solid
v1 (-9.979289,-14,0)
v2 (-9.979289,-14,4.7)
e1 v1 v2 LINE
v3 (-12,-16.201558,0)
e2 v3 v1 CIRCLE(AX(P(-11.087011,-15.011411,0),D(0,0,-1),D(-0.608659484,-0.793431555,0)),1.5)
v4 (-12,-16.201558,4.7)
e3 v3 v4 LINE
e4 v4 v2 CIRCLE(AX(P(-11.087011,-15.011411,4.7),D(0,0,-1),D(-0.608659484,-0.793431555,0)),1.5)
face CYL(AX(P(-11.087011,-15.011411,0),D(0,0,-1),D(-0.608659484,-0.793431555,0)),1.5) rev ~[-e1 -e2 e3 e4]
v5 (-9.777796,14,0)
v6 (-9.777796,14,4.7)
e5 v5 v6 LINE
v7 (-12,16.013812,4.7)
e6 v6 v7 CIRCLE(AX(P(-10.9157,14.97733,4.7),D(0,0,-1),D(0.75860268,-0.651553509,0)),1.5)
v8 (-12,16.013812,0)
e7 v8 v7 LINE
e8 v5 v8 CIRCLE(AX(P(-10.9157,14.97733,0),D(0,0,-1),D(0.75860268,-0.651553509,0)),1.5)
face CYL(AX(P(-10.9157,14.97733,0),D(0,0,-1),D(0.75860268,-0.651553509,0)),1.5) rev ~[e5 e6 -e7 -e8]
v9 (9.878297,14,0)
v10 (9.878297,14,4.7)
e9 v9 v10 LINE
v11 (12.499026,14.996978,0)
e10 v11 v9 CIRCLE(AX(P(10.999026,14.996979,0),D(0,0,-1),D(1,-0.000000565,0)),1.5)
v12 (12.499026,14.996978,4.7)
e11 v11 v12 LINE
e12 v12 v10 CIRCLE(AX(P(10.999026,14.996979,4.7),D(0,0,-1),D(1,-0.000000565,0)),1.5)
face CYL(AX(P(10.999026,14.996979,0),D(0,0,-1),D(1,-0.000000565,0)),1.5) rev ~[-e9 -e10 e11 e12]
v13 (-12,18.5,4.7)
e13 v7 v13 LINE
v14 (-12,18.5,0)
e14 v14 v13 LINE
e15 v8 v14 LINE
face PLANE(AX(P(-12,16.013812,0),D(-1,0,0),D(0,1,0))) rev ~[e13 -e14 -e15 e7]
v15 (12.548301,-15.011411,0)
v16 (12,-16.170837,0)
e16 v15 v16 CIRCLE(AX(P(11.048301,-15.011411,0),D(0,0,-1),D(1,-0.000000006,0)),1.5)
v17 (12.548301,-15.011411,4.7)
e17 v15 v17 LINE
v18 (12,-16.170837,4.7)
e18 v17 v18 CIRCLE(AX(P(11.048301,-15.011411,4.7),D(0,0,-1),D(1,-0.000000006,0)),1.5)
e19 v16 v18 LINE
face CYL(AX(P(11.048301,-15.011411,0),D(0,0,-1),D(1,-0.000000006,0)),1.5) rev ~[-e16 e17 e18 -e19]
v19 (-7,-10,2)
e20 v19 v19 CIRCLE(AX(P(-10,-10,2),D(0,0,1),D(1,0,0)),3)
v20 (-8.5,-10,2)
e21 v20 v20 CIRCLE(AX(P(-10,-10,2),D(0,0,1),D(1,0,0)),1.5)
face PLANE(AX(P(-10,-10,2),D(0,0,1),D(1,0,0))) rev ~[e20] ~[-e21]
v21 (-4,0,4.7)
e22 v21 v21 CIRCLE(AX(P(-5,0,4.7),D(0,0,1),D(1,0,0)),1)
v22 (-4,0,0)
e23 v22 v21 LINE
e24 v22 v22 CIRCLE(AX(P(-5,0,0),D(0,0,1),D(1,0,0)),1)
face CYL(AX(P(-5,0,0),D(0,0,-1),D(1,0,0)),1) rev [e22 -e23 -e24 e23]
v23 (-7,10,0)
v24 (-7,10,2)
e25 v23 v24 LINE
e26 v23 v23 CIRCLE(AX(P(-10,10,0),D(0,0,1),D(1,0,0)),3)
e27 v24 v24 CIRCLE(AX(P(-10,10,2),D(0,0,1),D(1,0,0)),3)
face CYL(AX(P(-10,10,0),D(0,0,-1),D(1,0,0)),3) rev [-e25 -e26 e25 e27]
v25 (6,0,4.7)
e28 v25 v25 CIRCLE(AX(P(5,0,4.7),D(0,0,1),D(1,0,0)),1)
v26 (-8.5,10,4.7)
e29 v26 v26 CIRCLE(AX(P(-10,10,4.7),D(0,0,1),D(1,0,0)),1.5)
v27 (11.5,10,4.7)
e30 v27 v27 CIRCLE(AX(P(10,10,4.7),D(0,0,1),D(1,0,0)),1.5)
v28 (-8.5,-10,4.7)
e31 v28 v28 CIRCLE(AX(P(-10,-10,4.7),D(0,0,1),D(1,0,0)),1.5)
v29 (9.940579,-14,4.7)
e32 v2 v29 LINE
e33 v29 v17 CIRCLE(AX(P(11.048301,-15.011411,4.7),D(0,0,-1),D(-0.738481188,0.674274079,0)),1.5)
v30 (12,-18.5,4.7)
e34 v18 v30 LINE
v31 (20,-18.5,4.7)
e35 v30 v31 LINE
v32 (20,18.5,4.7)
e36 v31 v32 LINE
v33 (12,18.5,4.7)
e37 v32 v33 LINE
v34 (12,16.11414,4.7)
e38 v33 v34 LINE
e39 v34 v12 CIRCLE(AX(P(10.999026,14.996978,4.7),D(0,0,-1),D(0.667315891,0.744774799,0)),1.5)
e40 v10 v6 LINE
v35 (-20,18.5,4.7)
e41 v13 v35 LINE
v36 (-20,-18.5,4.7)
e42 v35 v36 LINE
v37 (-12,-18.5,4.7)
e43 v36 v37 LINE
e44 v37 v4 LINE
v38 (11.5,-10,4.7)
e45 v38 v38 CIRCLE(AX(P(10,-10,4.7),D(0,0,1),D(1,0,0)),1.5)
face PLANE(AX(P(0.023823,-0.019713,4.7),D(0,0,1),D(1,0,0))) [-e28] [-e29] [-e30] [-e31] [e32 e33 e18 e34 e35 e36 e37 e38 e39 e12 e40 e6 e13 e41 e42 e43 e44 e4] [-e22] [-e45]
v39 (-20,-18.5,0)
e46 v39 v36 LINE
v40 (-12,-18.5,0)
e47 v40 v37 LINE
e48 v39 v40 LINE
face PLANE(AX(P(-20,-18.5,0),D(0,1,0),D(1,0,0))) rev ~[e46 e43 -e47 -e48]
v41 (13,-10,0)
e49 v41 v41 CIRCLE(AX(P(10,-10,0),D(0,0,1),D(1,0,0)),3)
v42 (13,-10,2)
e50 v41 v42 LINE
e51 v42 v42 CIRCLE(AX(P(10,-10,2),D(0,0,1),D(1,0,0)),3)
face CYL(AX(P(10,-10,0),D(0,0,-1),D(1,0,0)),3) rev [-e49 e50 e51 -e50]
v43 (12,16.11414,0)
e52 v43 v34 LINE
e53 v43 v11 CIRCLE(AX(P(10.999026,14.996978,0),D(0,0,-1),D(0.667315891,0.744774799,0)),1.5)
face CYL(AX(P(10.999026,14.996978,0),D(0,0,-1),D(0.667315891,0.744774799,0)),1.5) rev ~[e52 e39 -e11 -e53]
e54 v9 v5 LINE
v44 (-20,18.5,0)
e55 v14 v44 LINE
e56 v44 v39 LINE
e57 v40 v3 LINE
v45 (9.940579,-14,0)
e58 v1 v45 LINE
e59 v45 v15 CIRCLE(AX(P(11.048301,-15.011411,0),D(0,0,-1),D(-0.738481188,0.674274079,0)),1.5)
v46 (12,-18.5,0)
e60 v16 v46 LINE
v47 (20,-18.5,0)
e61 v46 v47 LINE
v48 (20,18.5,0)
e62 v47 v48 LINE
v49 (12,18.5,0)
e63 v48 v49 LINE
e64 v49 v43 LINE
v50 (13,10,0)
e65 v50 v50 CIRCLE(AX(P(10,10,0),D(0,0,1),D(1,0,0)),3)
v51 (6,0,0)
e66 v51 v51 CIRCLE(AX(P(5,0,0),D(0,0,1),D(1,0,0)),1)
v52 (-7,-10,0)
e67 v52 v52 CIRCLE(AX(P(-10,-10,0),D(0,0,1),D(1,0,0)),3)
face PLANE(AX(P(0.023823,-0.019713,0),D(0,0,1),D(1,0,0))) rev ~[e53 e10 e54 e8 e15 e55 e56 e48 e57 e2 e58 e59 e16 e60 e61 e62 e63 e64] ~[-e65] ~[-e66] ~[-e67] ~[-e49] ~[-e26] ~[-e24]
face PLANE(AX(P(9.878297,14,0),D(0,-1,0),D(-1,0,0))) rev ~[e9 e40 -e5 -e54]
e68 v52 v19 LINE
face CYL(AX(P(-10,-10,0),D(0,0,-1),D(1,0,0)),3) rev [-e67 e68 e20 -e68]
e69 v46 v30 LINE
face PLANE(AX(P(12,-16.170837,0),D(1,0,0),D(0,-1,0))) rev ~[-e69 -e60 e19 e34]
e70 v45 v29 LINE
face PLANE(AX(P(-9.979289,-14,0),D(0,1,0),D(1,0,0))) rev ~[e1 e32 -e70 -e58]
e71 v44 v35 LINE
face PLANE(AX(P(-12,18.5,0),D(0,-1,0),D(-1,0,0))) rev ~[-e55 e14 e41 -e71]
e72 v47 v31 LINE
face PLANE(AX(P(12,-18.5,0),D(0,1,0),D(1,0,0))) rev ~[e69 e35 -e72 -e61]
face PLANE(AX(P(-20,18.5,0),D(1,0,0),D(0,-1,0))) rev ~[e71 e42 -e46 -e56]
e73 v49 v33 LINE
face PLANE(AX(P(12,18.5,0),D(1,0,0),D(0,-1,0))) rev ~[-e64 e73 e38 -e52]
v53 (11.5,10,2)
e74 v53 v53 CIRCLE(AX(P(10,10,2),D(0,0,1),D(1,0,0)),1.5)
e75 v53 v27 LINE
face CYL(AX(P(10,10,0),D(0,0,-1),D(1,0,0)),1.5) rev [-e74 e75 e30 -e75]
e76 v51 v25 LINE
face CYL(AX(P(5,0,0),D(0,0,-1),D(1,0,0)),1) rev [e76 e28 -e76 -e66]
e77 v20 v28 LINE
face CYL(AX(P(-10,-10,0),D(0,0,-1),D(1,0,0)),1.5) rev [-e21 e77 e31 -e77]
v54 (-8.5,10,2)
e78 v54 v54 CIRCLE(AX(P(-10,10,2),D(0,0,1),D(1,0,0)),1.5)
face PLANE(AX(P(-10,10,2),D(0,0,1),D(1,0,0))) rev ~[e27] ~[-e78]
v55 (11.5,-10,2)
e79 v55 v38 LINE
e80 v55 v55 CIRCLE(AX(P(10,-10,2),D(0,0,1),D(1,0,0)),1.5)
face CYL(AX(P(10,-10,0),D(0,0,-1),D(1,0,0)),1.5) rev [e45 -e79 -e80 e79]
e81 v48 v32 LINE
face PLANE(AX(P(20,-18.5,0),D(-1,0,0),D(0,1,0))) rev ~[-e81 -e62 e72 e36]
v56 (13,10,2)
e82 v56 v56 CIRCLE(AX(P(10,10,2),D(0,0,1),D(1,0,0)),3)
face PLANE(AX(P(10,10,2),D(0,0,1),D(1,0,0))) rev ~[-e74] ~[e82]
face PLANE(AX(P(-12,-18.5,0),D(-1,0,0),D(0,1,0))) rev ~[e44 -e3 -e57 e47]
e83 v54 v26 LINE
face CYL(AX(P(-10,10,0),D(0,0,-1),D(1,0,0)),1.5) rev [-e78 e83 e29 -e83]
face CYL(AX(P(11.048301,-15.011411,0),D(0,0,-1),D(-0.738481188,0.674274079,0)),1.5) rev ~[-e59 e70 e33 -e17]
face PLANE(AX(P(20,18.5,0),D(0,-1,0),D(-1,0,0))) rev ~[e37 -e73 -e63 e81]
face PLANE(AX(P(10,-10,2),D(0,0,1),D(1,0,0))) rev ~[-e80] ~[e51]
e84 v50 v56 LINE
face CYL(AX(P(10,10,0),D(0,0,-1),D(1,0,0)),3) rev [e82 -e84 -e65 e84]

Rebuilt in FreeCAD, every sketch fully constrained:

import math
import FreeCAD as App
import Part
import Sketcher
from FreeCAD import Vector
Q = App.Units.Quantity

doc = App.newDocument("Part")
body = doc.addObject("PartDesign::Body", "Body")

# Sketch on XY plane
sketch1 = body.newObject("Sketcher::SketchObject", "Sketch")
sketch1.AttachmentSupport = (doc.getObject("XY_Plane"), [""])
sketch1.MapMode = "FlatFace"
sketch1.addGeometry(Part.LineSegment(Vector(12, -18.5, 0), Vector(20, -18.5, 0)), False)
sketch1.addGeometry(Part.LineSegment(Vector(20, -18.5, 0), Vector(20, 18.5, 0)), False)
sketch1.addGeometry(Part.LineSegment(Vector(20, 18.5, 0), Vector(12, 18.5, 0)), False)
sketch1.addGeometry(Part.LineSegment(Vector(12, 18.5, 0), Vector(12, 16.1, 0)), False)
sketch1.addGeometry(Part.ArcOfCircle(Part.Circle(Vector(11, 15, 0), Vector(0, 0, 1), 1.5), math.radians(0), math.radians(48)), False)
sketch1.addGeometry(Part.ArcOfCircle(Part.Circle(Vector(11, 15, 0), Vector(0, 0, 1), 1.5), math.radians(-138), math.radians(0)), False)
sketch1.addGeometry(Part.LineSegment(Vector(9.9, 14, 0), Vector(-9.8, 14, 0)), False)
sketch1.addGeometry(Part.ArcOfCircle(Part.Circle(Vector(-10.9, 15, 0), Vector(0, 0, 1), 1.5), math.radians(136), math.radians(319)), False)
sketch1.addGeometry(Part.LineSegment(Vector(-12, 16, 0), Vector(-12, 18.5, 0)), False)
sketch1.addGeometry(Part.LineSegment(Vector(-12, 18.5, 0), Vector(-20, 18.5, 0)), False)
sketch1.addGeometry(Part.LineSegment(Vector(-20, 18.5, 0), Vector(-20, -18.5, 0)), False)
sketch1.addGeometry(Part.LineSegment(Vector(-20, -18.5, 0), Vector(-12, -18.5, 0)), False)
sketch1.addGeometry(Part.LineSegment(Vector(-12, -18.5, 0), Vector(-12, -16.2, 0)), False)
sketch1.addGeometry(Part.ArcOfCircle(Part.Circle(Vector(-11.1, -15, 0), Vector(0, 0, 1), 1.5), math.radians(42), math.radians(233)), False)
sketch1.addGeometry(Part.LineSegment(Vector(-10, -14, 0), Vector(9.9, -14, 0)), False)
sketch1.addGeometry(Part.ArcOfCircle(Part.Circle(Vector(11, -15, 0), Vector(0, 0, 1), 1.5), math.radians(0), math.radians(138)), False)
sketch1.addGeometry(Part.ArcOfCircle(Part.Circle(Vector(11, -15, 0), Vector(0, 0, 1), 1.5), math.radians(-51), math.radians(0)), False)
sketch1.addGeometry(Part.LineSegment(Vector(12, -16.2, 0), Vector(12, -18.5, 0)), False)
sketch1.addGeometry(Part.Circle(Vector(-10, -10, 0), Vector(0, 0, 1), 1.5), False)
sketch1.addGeometry(Part.Circle(Vector(10, -10, 0), Vector(0, 0, 1), 1.5), False)
sketch1.addGeometry(Part.Circle(Vector(-5, 0, 0), Vector(0, 0, 1), 1), False)
sketch1.addGeometry(Part.Circle(Vector(-10, 10, 0), Vector(0, 0, 1), 1.5), False)
sketch1.addGeometry(Part.Circle(Vector(5, 0, 0), Vector(0, 0, 1), 1), False)
sketch1.addGeometry(Part.Circle(Vector(10, 10, 0), Vector(0, 0, 1), 1.5), False)
sketch1.addConstraint(Sketcher.Constraint("Coincident", 0, 2, 1, 1))
sketch1.addConstraint(Sketcher.Constraint("Coincident", 1, 2, 2, 1))
sketch1.addConstraint(Sketcher.Constraint("Coincident", 2, 2, 3, 1))
sketch1.addConstraint(Sketcher.Constraint("Coincident", 3, 2, 4, 2))
sketch1.addConstraint(Sketcher.Constraint("Tangent", 4, 1, 5, 2))
sketch1.addConstraint(Sketcher.Constraint("Coincident", 5, 1, 6, 1))
sketch1.addConstraint(Sketcher.Constraint("Coincident", 6, 2, 7, 2))
sketch1.addConstraint(Sketcher.Constraint("Coincident", 7, 1, 8, 1))
sketch1.addConstraint(Sketcher.Constraint("Coincident", 8, 2, 9, 1))
sketch1.addConstraint(Sketcher.Constraint("Coincident", 9, 2, 10, 1))
sketch1.addConstraint(Sketcher.Constraint("Coincident", 10, 2, 11, 1))
sketch1.addConstraint(Sketcher.Constraint("Coincident", 11, 2, 12, 1))
sketch1.addConstraint(Sketcher.Constraint("Coincident", 12, 2, 13, 2))
sketch1.addConstraint(Sketcher.Constraint("Coincident", 13, 1, 14, 1))
sketch1.addConstraint(Sketcher.Constraint("Coincident", 14, 2, 15, 2))
sketch1.addConstraint(Sketcher.Constraint("Tangent", 15, 1, 16, 2))
sketch1.addConstraint(Sketcher.Constraint("Coincident", 16, 1, 17, 1))
sketch1.addConstraint(Sketcher.Constraint("Coincident", 17, 2, 0, 1))
sketch1.addConstraint(Sketcher.Constraint("Horizontal", 0))
sketch1.addConstraint(Sketcher.Constraint("Vertical", 1))
sketch1.addConstraint(Sketcher.Constraint("Horizontal", 2))
sketch1.addConstraint(Sketcher.Constraint("Vertical", 3))
sketch1.addConstraint(Sketcher.Constraint("Horizontal", 6))
sketch1.addConstraint(Sketcher.Constraint("Vertical", 8))
sketch1.addConstraint(Sketcher.Constraint("Horizontal", 9))
sketch1.addConstraint(Sketcher.Constraint("Vertical", 10))
sketch1.addConstraint(Sketcher.Constraint("Horizontal", 11))
sketch1.addConstraint(Sketcher.Constraint("Vertical", 12))
sketch1.addConstraint(Sketcher.Constraint("Horizontal", 14))
sketch1.addConstraint(Sketcher.Constraint("Vertical", 17))
sketch1.addConstraint(Sketcher.Constraint("Equal", 4, 5))
sketch1.addConstraint(Sketcher.Constraint("Equal", 5, 7))
sketch1.addConstraint(Sketcher.Constraint("Equal", 7, 13))
sketch1.addConstraint(Sketcher.Constraint("Equal", 13, 15))
sketch1.addConstraint(Sketcher.Constraint("Equal", 15, 16))
sketch1.addConstraint(Sketcher.Constraint("Equal", 16, 18))
sketch1.addConstraint(Sketcher.Constraint("Equal", 18, 19))
sketch1.addConstraint(Sketcher.Constraint("Equal", 19, 21))
sketch1.addConstraint(Sketcher.Constraint("Equal", 20, 22))
sketch1.addConstraint(Sketcher.Constraint("Equal", 21, 23))
sketch1.addConstraint(Sketcher.Constraint("Symmetric", 19, 3, 21, 3, -1, 1))
sketch1.addConstraint(Sketcher.Constraint("Symmetric", 20, 3, 22, 3, -1, 1))
sketch1.addConstraint(Sketcher.Constraint("Symmetric", 18, 3, 23, 3, -1, 1))
sketch1.addConstraint(Sketcher.Constraint("Symmetric", 0, 2, 9, 2, -1, 1))
sketch1.addConstraint(Sketcher.Constraint("Symmetric", 2, 2, 11, 2, -1, 1))
sketch1.addConstraint(Sketcher.Constraint("Symmetric", 18, 3, 19, 3, -2))
sketch1.addConstraint(Sketcher.Constraint("Symmetric", 2, 2, 8, 2, -2))
sketch1.addConstraint(Sketcher.Constraint("PointOnObject", 20, 3, -1))
sketch1.addConstraint(Sketcher.Constraint("Horizontal", 13, 3, 15, 3))
sketch1.addConstraint(Sketcher.Constraint("Horizontal", 5, 3, 4, 1))
sketch1.addConstraint(Sketcher.Constraint("Horizontal", 16, 3, 15, 1))
sketch1.addConstraint(Sketcher.Constraint("Vertical", 3, 2, 16, 1))
sketch1.addConstraint(Sketcher.Constraint("Diameter", 18, Q("3 mm")))
sketch1.addConstraint(Sketcher.Constraint("Diameter", 20, Q("2 mm")))
sketch1.addConstraint(Sketcher.Constraint("DistanceX", 0, 1, 0, 2, Q("8 mm")))
sketch1.addConstraint(Sketcher.Constraint("DistanceY", 1, 1, 1, 2, Q("37 mm")))
sketch1.addConstraint(Sketcher.Constraint("DistanceX", 18, 3, -1, 1, Q("10 mm")))
sketch1.addConstraint(Sketcher.Constraint("DistanceY", 18, 3, -1, 1, Q("10 mm")))
sketch1.addConstraint(Sketcher.Constraint("DistanceX", 20, 3, -1, 1, Q("5 mm")))
sketch1.addConstraint(Sketcher.Constraint("DistanceX", -1, 1, 0, 2, Q("20 mm")))
sketch1.addConstraint(Sketcher.Constraint("DistanceY", -1, 1, 5, 1, Q("14 mm")))
sketch1.addConstraint(Sketcher.Constraint("DistanceY", 13, 1, -1, 1, Q("14 mm")))
sketch1.addConstraint(Sketcher.Constraint("DistanceX", 7, 3, 15, 3, Q("21.964001 mm")))
sketch1.addConstraint(Sketcher.Constraint("DistanceX", 14, 1, 14, 2, Q("19.919868 mm")))
sketch1.addConstraint(Sketcher.Constraint("DistanceY", 3, 2, 3, 1, Q("2.38586 mm")))
sketch1.addConstraint(Sketcher.Constraint("DistanceX", 7, 3, -1, 1, Q("10.9157 mm")))
sketch1.addConstraint(Sketcher.Constraint("DistanceX", 6, 2, 6, 1, Q("19.656093 mm")))
sketch1.addConstraint(Sketcher.Constraint("DistanceY", 8, 1, 8, 2, Q("2.486188 mm")))
sketch1.addConstraint(Sketcher.Constraint("DistanceY", 12, 1, 12, 2, Q("2.298442 mm")))
pad1 = body.newObject("PartDesign::Pad", "Pad")
pad1.Profile = sketch1
pad1.Length = 4.7

# Sketch on XY plane
sketch2 = body.newObject("Sketcher::SketchObject", "Sketch001")
sketch2.AttachmentSupport = (doc.getObject("XY_Plane"), [""])
sketch2.MapMode = "FlatFace"
sketch2.addGeometry(Part.Circle(Vector(10, 10, 0), Vector(0, 0, 1), 3), False)
sketch2.addGeometry(Part.Circle(Vector(10, 10, 0), Vector(0, 0, 1), 1.5), False)
sketch2.addGeometry(Part.Circle(Vector(-10, 10, 0), Vector(0, 0, 1), 3), False)
sketch2.addGeometry(Part.Circle(Vector(-10, 10, 0), Vector(0, 0, 1), 1.5), False)
sketch2.addGeometry(Part.Circle(Vector(10, -10, 0), Vector(0, 0, 1), 3), False)
sketch2.addGeometry(Part.Circle(Vector(10, -10, 0), Vector(0, 0, 1), 1.5), False)
sketch2.addGeometry(Part.Circle(Vector(-10, -10, 0), Vector(0, 0, 1), 3), False)
sketch2.addGeometry(Part.Circle(Vector(-10, -10, 0), Vector(0, 0, 1), 1.5), False)
sketch2.addConstraint(Sketcher.Constraint("Coincident", 1, 3, 0, 3))
sketch2.addConstraint(Sketcher.Constraint("Coincident", 3, 3, 2, 3))
sketch2.addConstraint(Sketcher.Constraint("Coincident", 5, 3, 4, 3))
sketch2.addConstraint(Sketcher.Constraint("Coincident", 7, 3, 6, 3))
sketch2.addConstraint(Sketcher.Constraint("Equal", 0, 2))
sketch2.addConstraint(Sketcher.Constraint("Equal", 1, 3))
sketch2.addConstraint(Sketcher.Constraint("Equal", 2, 4))
sketch2.addConstraint(Sketcher.Constraint("Equal", 3, 5))
sketch2.addConstraint(Sketcher.Constraint("Equal", 4, 6))
sketch2.addConstraint(Sketcher.Constraint("Equal", 5, 7))
sketch2.addConstraint(Sketcher.Constraint("Symmetric", 2, 3, 4, 3, -1, 1))
sketch2.addConstraint(Sketcher.Constraint("Symmetric", 0, 3, 6, 3, -1, 1))
sketch2.addConstraint(Sketcher.Constraint("Symmetric", 0, 3, 2, 3, -2))
sketch2.addConstraint(Sketcher.Constraint("Diameter", 0, Q("6 mm")))
sketch2.addConstraint(Sketcher.Constraint("Diameter", 1, Q("3 mm")))
sketch2.addConstraint(Sketcher.Constraint("DistanceX", -1, 1, 0, 3, Q("10 mm")))
sketch2.addConstraint(Sketcher.Constraint("DistanceY", -1, 1, 0, 3, Q("10 mm")))
pocket1 = body.newObject("PartDesign::Pocket", "Pocket")
pocket1.Profile = sketch2
pocket1.Length = 2
pocket1.Reversed = True

doc.recompute()
